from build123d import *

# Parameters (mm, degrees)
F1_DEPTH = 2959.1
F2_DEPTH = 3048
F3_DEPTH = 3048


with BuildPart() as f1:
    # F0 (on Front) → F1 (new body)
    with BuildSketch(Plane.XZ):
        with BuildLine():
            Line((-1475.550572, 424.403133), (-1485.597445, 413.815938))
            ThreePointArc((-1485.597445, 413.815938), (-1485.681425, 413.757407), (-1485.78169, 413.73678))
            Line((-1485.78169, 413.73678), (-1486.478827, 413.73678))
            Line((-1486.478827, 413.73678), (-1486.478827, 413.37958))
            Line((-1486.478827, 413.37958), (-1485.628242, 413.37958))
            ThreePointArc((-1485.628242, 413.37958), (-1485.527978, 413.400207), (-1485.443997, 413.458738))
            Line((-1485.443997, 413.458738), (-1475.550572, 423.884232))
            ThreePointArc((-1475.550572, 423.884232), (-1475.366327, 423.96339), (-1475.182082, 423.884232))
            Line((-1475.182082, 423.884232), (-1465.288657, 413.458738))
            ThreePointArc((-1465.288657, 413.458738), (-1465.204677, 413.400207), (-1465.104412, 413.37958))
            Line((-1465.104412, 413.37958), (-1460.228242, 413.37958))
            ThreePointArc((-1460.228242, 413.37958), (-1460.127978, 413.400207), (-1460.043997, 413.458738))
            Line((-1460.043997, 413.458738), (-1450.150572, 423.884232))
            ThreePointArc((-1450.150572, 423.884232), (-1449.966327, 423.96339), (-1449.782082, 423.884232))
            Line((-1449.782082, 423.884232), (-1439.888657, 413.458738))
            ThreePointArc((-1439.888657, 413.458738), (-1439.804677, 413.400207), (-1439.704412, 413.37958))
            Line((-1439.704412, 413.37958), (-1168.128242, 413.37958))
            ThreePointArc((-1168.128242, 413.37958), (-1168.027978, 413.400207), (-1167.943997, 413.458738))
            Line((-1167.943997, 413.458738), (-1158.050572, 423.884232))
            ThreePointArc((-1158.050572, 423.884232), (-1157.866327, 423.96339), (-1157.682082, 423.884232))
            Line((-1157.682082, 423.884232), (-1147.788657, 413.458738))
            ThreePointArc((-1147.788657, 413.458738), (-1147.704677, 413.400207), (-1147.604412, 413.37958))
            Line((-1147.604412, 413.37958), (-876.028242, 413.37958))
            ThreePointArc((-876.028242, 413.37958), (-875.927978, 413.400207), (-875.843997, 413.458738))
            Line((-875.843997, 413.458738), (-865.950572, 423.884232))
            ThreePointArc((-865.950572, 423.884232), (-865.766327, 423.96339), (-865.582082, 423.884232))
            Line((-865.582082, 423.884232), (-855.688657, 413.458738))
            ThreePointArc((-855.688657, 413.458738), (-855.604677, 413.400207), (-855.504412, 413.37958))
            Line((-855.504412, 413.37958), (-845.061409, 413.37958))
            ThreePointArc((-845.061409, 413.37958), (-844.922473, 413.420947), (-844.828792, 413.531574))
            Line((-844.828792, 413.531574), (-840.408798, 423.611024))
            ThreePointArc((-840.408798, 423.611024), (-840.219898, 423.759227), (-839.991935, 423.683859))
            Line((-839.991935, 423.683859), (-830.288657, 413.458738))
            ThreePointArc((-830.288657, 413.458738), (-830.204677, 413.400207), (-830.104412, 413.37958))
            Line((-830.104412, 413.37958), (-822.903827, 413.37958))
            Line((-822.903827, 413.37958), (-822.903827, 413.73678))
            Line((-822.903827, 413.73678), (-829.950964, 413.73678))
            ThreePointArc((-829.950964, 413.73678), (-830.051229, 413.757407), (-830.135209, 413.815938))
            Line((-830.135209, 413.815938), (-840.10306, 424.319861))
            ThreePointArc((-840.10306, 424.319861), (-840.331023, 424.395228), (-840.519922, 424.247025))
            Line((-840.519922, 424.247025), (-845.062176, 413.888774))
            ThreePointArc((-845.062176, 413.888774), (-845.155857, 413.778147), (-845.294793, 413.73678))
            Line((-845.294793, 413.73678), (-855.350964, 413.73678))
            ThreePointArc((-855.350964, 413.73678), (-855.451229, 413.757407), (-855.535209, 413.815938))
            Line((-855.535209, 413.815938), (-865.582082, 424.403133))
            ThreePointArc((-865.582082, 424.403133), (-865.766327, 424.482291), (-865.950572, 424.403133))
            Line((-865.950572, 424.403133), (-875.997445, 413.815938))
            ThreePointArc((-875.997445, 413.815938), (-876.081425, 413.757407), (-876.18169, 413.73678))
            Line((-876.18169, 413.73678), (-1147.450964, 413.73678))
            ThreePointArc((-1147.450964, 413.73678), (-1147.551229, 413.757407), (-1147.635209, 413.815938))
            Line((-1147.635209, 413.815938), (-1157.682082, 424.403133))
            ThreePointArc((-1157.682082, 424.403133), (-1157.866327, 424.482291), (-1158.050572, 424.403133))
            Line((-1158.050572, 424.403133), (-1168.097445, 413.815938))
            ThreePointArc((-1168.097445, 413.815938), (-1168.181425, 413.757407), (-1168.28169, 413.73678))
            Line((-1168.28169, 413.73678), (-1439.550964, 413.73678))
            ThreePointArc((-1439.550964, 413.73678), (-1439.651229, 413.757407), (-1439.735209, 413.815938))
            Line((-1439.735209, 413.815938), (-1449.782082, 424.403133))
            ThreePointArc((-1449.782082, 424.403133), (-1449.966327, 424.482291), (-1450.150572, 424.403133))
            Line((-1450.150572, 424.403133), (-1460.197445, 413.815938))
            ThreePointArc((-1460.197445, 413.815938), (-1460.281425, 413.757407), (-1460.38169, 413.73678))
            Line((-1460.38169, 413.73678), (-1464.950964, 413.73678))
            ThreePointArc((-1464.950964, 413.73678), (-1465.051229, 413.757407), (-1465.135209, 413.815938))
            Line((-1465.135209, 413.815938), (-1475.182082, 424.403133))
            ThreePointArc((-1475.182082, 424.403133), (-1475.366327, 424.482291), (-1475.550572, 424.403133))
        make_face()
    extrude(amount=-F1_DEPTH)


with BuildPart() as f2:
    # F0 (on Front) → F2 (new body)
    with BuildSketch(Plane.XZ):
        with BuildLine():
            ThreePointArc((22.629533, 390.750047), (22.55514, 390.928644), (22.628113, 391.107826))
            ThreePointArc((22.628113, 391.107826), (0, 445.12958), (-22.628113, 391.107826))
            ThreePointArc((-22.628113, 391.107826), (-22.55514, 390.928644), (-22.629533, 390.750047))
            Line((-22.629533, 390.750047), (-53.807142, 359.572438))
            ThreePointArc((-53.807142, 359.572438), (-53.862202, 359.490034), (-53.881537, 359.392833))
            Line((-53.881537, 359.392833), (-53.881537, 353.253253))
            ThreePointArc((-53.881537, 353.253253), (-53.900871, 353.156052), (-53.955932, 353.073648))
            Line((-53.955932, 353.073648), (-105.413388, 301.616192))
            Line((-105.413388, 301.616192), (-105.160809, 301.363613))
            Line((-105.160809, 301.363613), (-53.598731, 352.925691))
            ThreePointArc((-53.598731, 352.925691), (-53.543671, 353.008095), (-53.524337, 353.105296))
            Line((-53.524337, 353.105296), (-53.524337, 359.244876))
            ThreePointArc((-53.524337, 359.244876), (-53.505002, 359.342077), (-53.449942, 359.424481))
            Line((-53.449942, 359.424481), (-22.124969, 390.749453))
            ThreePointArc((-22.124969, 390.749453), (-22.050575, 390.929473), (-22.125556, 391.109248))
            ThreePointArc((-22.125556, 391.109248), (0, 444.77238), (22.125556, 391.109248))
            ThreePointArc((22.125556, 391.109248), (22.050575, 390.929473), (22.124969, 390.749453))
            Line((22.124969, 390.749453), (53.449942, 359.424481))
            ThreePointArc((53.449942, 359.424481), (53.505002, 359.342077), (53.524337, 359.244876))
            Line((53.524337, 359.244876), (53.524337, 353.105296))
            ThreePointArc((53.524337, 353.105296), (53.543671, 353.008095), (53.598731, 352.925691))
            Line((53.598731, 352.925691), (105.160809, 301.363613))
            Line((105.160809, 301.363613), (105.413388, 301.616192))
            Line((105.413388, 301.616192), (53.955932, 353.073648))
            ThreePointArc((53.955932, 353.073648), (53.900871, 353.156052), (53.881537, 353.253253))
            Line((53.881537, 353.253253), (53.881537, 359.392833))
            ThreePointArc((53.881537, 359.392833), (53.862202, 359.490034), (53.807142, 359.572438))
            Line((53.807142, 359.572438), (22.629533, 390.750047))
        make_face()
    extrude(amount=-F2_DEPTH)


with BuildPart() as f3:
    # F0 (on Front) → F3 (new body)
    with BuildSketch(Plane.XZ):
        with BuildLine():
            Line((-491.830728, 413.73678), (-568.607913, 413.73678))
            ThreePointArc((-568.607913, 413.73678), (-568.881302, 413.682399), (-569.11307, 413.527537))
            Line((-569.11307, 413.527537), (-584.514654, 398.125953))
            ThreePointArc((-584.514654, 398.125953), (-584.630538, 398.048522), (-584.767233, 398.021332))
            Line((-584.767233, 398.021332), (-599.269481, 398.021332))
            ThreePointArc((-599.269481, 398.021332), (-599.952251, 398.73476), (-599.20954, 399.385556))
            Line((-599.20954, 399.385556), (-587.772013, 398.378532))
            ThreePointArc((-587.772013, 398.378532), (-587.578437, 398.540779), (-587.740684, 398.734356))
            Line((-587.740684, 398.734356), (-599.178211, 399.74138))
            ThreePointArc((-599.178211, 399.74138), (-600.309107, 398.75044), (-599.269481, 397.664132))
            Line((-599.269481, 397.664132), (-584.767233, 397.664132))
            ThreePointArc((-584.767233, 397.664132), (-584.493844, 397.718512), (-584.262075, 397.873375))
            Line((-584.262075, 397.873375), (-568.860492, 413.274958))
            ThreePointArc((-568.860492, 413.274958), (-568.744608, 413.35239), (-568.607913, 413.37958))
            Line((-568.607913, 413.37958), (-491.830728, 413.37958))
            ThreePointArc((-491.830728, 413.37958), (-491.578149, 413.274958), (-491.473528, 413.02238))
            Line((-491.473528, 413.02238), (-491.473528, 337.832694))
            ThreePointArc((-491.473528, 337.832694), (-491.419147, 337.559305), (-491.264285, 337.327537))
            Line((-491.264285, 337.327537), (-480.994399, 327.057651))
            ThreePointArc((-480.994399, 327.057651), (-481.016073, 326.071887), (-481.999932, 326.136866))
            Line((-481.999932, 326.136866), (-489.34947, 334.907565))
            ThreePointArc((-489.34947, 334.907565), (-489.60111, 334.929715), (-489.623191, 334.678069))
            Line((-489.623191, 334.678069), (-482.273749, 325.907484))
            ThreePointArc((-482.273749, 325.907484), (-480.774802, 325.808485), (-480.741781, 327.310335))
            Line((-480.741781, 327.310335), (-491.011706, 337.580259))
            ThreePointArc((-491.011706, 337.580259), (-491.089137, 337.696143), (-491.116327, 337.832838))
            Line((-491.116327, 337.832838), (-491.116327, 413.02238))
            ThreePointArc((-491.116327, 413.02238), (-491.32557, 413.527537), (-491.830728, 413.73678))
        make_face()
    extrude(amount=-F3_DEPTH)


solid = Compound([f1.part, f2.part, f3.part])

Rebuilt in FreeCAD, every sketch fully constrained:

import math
import FreeCAD as App
import Part
import Sketcher

V = App.Vector
Q = App.Units.Quantity

doc = App.newDocument("Part")
body = doc.addObject("PartDesign::Body", "Body")

sketch1 = body.newObject("Sketcher::SketchObject", "Sketch")
sketch1.AttachmentSupport = (doc.getObject("XZ_Plane"), [""])
sketch1.MapMode = "FlatFace"
sketch1.addGeometry([
    Part.LineSegment(V(-1475.550572, 424.403133, 0), V(-1485.597445, 413.815938, 0)),
    Part.ArcOfCircle(Part.Circle(V(-1485.78169, 413.990779, 0), V(0, 0, 1), 0.253999), math.radians(-90.00009), math.radians(-43.499857)),
    Part.LineSegment(V(-1485.78169, 413.73678, 0), V(-1486.478827, 413.73678, 0)),
    Part.LineSegment(V(-1486.478827, 413.73678, 0), V(-1486.478827, 413.37958, 0)),
    Part.LineSegment(V(-1486.478827, 413.37958, 0), V(-1485.628242, 413.37958, 0)),
    Part.ArcOfCircle(Part.Circle(V(-1485.628244, 413.633583, 0), V(0, 0, 1), 0.254003), math.radians(-89.999657), math.radians(-43.50029)),
    Part.LineSegment(V(-1485.443997, 413.458738, 0), V(-1475.550572, 423.884232, 0)),
    Part.ArcOfCircle(Part.Circle(V(-1475.366327, 423.70939, 0), V(0, 0, 1), 0.254), math.radians(43.499947), math.radians(136.500053)),
    Part.LineSegment(V(-1475.182082, 423.884232, 0), V(-1465.288657, 413.458738, 0)),
    Part.ArcOfCircle(Part.Circle(V(-1465.104412, 413.633579, 0), V(0, 0, 1), 0.253999), math.radians(-136.500143), math.radians(-89.99991)),
    Part.LineSegment(V(-1465.104412, 413.37958, 0), V(-1460.228242, 413.37958, 0)),
    Part.ArcOfCircle(Part.Circle(V(-1460.228244, 413.633583, 0), V(0, 0, 1), 0.254003), math.radians(-89.999657), math.radians(-43.50029)),
    Part.LineSegment(V(-1460.043997, 413.458738, 0), V(-1450.150572, 423.884232, 0)),
    Part.ArcOfCircle(Part.Circle(V(-1449.966327, 423.70939, 0), V(0, 0, 1), 0.254), math.radians(43.499947), math.radians(136.500053)),
    Part.LineSegment(V(-1449.782082, 423.884232, 0), V(-1439.888657, 413.458738, 0)),
    Part.ArcOfCircle(Part.Circle(V(-1439.704412, 413.633579, 0), V(0, 0, 1), 0.253999), math.radians(-136.500143), math.radians(-89.99991)),
    Part.LineSegment(V(-1439.704412, 413.37958, 0), V(-1168.128242, 413.37958, 0)),
    Part.ArcOfCircle(Part.Circle(V(-1168.128244, 413.633583, 0), V(0, 0, 1), 0.254003), math.radians(-89.999657), math.radians(-43.50029)),
    Part.LineSegment(V(-1167.943997, 413.458738, 0), V(-1158.050572, 423.884232, 0)),
    Part.ArcOfCircle(Part.Circle(V(-1157.866327, 423.70939, 0), V(0, 0, 1), 0.254), math.radians(43.499947), math.radians(136.500053)),
    Part.LineSegment(V(-1157.682082, 423.884232, 0), V(-1147.788657, 413.458738, 0)),
    Part.ArcOfCircle(Part.Circle(V(-1147.604412, 413.633579, 0), V(0, 0, 1), 0.253999), math.radians(-136.500143), math.radians(-89.99991)),
    Part.LineSegment(V(-1147.604412, 413.37958, 0), V(-876.028242, 413.37958, 0)),
    Part.ArcOfCircle(Part.Circle(V(-876.028244, 413.633583, 0), V(0, 0, 1), 0.254003), math.radians(-89.999657), math.radians(-43.50029)),
    Part.LineSegment(V(-875.843997, 413.458738, 0), V(-865.950572, 423.884232, 0)),
    Part.ArcOfCircle(Part.Circle(V(-865.766327, 423.70939, 0), V(0, 0, 1), 0.254), math.radians(43.499947), math.radians(136.500053)),
    Part.LineSegment(V(-865.582082, 423.884232, 0), V(-855.688657, 413.458738, 0)),
    Part.ArcOfCircle(Part.Circle(V(-855.504412, 413.633579, 0), V(0, 0, 1), 0.253999), math.radians(-136.500143), math.radians(-89.99991)),
    Part.LineSegment(V(-855.504412, 413.37958, 0), V(-845.061409, 413.37958, 0)),
    Part.ArcOfCircle(Part.Circle(V(-845.061409, 413.633579, 0), V(0, 0, 1), 0.253999), math.radians(-90.000051), math.radians(-23.678039)),
    Part.LineSegment(V(-844.828792, 413.531574, 0), V(-840.408798, 423.611024, 0)),
    Part.ArcOfCircle(Part.Circle(V(-840.176181, 423.509017, 0), V(0, 0, 1), 0.254), math.radians(43.499868), math.radians(156.321675)),
    Part.LineSegment(V(-839.991935, 423.683859, 0), V(-830.288657, 413.458738, 0)),
    Part.ArcOfCircle(Part.Circle(V(-830.104412, 413.633579, 0), V(0, 0, 1), 0.253999), math.radians(-136.500143), math.radians(-89.99991)),
    Part.LineSegment(V(-830.104412, 413.37958, 0), V(-822.903827, 413.37958, 0)),
    Part.LineSegment(V(-822.903827, 413.37958, 0), V(-822.903827, 413.73678, 0)),
    Part.LineSegment(V(-822.903827, 413.73678, 0), V(-829.950964, 413.73678, 0)),
    Part.ArcOfCircle(Part.Circle(V(-829.950964, 413.990779, 0), V(0, 0, 1), 0.253999), math.radians(-136.500143), math.radians(-89.99991)),
    Part.LineSegment(V(-830.135209, 413.815938, 0), V(-840.10306, 424.319861, 0)),
    Part.ArcOfCircle(Part.Circle(V(-840.287305, 424.145019, 0), V(0, 0, 1), 0.254), math.radians(43.500104), math.radians(156.321753)),
    Part.LineSegment(V(-840.519922, 424.247025, 0), V(-845.062176, 413.888774, 0)),
    Part.ArcOfCircle(Part.Circle(V(-845.294793, 413.990779, 0), V(0, 0, 1), 0.253999), math.radians(-90.000051), math.radians(-23.678039)),
    Part.LineSegment(V(-845.294793, 413.73678, 0), V(-855.350964, 413.73678, 0)),
    Part.ArcOfCircle(Part.Circle(V(-855.350964, 413.990779, 0), V(0, 0, 1), 0.253999), math.radians(-136.500143), math.radians(-89.99991)),
    Part.LineSegment(V(-855.535209, 413.815938, 0), V(-865.582082, 424.403133, 0)),
    Part.ArcOfCircle(Part.Circle(V(-865.766327, 424.228291, 0), V(0, 0, 1), 0.254), math.radians(43.499947), math.radians(136.500053)),
    Part.LineSegment(V(-865.950572, 424.403133, 0), V(-875.997445, 413.815938, 0)),
    Part.ArcOfCircle(Part.Circle(V(-876.18169, 413.990779, 0), V(0, 0, 1), 0.253999), math.radians(-90.00009), math.radians(-43.499857)),
    Part.LineSegment(V(-876.18169, 413.73678, 0), V(-1147.450964, 413.73678, 0)),
    Part.ArcOfCircle(Part.Circle(V(-1147.450964, 413.990779, 0), V(0, 0, 1), 0.253999), math.radians(-136.500143), math.radians(-89.99991)),
    Part.LineSegment(V(-1147.635209, 413.815938, 0), V(-1157.682082, 424.403133, 0)),
    Part.ArcOfCircle(Part.Circle(V(-1157.866327, 424.228291, 0), V(0, 0, 1), 0.254), math.radians(43.499947), math.radians(136.500053)),
    Part.LineSegment(V(-1158.050572, 424.403133, 0), V(-1168.097445, 413.815938, 0)),
    Part.ArcOfCircle(Part.Circle(V(-1168.28169, 413.990779, 0), V(0, 0, 1), 0.253999), math.radians(-90.00009), math.radians(-43.499857)),
    Part.LineSegment(V(-1168.28169, 413.73678, 0), V(-1439.550964, 413.73678, 0)),
    Part.ArcOfCircle(Part.Circle(V(-1439.550964, 413.990779, 0), V(0, 0, 1), 0.253999), math.radians(-136.500143), math.radians(-89.99991)),
    Part.LineSegment(V(-1439.735209, 413.815938, 0), V(-1449.782082, 424.403133, 0)),
    Part.ArcOfCircle(Part.Circle(V(-1449.966327, 424.228291, 0), V(0, 0, 1), 0.254), math.radians(43.499947), math.radians(136.500053)),
    Part.LineSegment(V(-1450.150572, 424.403133, 0), V(-1460.197445, 413.815938, 0)),
    Part.ArcOfCircle(Part.Circle(V(-1460.38169, 413.990779, 0), V(0, 0, 1), 0.253999), math.radians(-90.00009), math.radians(-43.499857)),
    Part.LineSegment(V(-1460.38169, 413.73678, 0), V(-1464.950964, 413.73678, 0)),
    Part.ArcOfCircle(Part.Circle(V(-1464.950964, 413.990779, 0), V(0, 0, 1), 0.253999), math.radians(-136.500143), math.radians(-89.99991)),
    Part.LineSegment(V(-1465.135209, 413.815938, 0), V(-1475.182082, 424.403133, 0)),
    Part.ArcOfCircle(Part.Circle(V(-1475.366327, 424.228291, 0), V(0, 0, 1), 0.254), math.radians(43.499947), math.radians(136.500053)),
], False)
sketch1.addConstraint([
    Sketcher.Constraint("Coincident", 0, 2, 1, 2),
    Sketcher.Constraint("Coincident", 1, 1, 2, 1),
    Sketcher.Constraint("Coincident", 2, 2, 3, 1),
    Sketcher.Constraint("Coincident", 3, 2, 4, 1),
    Sketcher.Constraint("Coincident", 4, 2, 5, 1),
    Sketcher.Constraint("Coincident", 5, 2, 6, 1),
    Sketcher.Constraint("Coincident", 6, 2, 7, 2),
    Sketcher.Constraint("Coincident", 7, 1, 8, 1),
    Sketcher.Constraint("Coincident", 8, 2, 9, 1),
    Sketcher.Constraint("Coincident", 9, 2, 10, 1),
    Sketcher.Constraint("Coincident", 10, 2, 11, 1),
    Sketcher.Constraint("Coincident", 11, 2, 12, 1),
    Sketcher.Constraint("Coincident", 12, 2, 13, 2),
    Sketcher.Constraint("Coincident", 13, 1, 14, 1),
    Sketcher.Constraint("Coincident", 14, 2, 15, 1),
    Sketcher.Constraint("Coincident", 15, 2, 16, 1),
    Sketcher.Constraint("Coincident", 16, 2, 17, 1),
    Sketcher.Constraint("Coincident", 17, 2, 18, 1),
    Sketcher.Constraint("Coincident", 18, 2, 19, 2),
    Sketcher.Constraint("Coincident", 19, 1, 20, 1),
    Sketcher.Constraint("Coincident", 20, 2, 21, 1),
    Sketcher.Constraint("Coincident", 21, 2, 22, 1),
    Sketcher.Constraint("Coincident", 22, 2, 23, 1),
    Sketcher.Constraint("Coincident", 23, 2, 24, 1),
    Sketcher.Constraint("Coincident", 24, 2, 25, 2),
    Sketcher.Constraint("Coincident", 25, 1, 26, 1),
    Sketcher.Constraint("Coincident", 26, 2, 27, 1),
    Sketcher.Constraint("Coincident", 27, 2, 28, 1),
    Sketcher.Constraint("Coincident", 28, 2, 29, 1),
    Sketcher.Constraint("Coincident", 29, 2, 30, 1),
    Sketcher.Constraint("Coincident", 30, 2, 31, 2),
    Sketcher.Constraint("Coincident", 31, 1, 32, 1),
    Sketcher.Constraint("Coincident", 32, 2, 33, 1),
    Sketcher.Constraint("Coincident", 33, 2, 34, 1),
    Sketcher.Constraint("Coincident", 34, 2, 35, 1),
    Sketcher.Constraint("Coincident", 35, 2, 36, 1),
    Sketcher.Constraint("Coincident", 36, 2, 37, 2),
    Sketcher.Constraint("Coincident", 37, 1, 38, 1),
    Sketcher.Constraint("Coincident", 38, 2, 39, 1),
    Sketcher.Constraint("Coincident", 39, 2, 40, 1),
    Sketcher.Constraint("Coincident", 40, 2, 41, 2),
    Sketcher.Constraint("Coincident", 41, 1, 42, 1),
    Sketcher.Constraint("Coincident", 42, 2, 43, 2),
    Sketcher.Constraint("Coincident", 43, 1, 44, 1),
    Sketcher.Constraint("Coincident", 44, 2, 45, 1),
    Sketcher.Constraint("Coincident", 45, 2, 46, 1),
    Sketcher.Constraint("Coincident", 46, 2, 47, 2),
    Sketcher.Constraint("Coincident", 47, 1, 48, 1),
    Sketcher.Constraint("Coincident", 48, 2, 49, 2),
    Sketcher.Constraint("Coincident", 49, 1, 50, 1),
    Sketcher.Constraint("Coincident", 50, 2, 51, 1),
    Sketcher.Constraint("Coincident", 51, 2, 52, 1),
    Sketcher.Constraint("Coincident", 52, 2, 53, 2),
    Sketcher.Constraint("Coincident", 53, 1, 54, 1),
    Sketcher.Constraint("Coincident", 54, 2, 55, 2),
    Sketcher.Constraint("Coincident", 55, 1, 56, 1),
    Sketcher.Constraint("Coincident", 56, 2, 57, 1),
    Sketcher.Constraint("Coincident", 57, 2, 58, 1),
    Sketcher.Constraint("Coincident", 58, 2, 59, 2),
    Sketcher.Constraint("Coincident", 59, 1, 60, 1),
    Sketcher.Constraint("Coincident", 60, 2, 61, 2),
    Sketcher.Constraint("Coincident", 61, 1, 62, 1),
    Sketcher.Constraint("Coincident", 62, 2, 63, 1),
    Sketcher.Constraint("Coincident", 63, 2, 0, 1),
    Sketcher.Constraint("Horizontal", 2),
    Sketcher.Constraint("Vertical", 3),
    Sketcher.Constraint("Horizontal", 4),
    Sketcher.Constraint("Horizontal", 10),
    Sketcher.Constraint("Horizontal", 16),
    Sketcher.Constraint("Horizontal", 22),
    Sketcher.Constraint("Horizontal", 28),
    Sketcher.Constraint("Horizontal", 34),
    Sketcher.Constraint("Vertical", 35),
    Sketcher.Constraint("Horizontal", 36),
    Sketcher.Constraint("Horizontal", 42),
    Sketcher.Constraint("Horizontal", 48),
    Sketcher.Constraint("Horizontal", 54),
    Sketcher.Constraint("Horizontal", 60),
    Sketcher.Constraint("Radius", 1, Q("0.0099999 in")),
    Sketcher.Constraint("Radius", 5, Q("0.0100001 in")),
    Sketcher.Constraint("Radius", 7, Q("0.01 in")),
    Sketcher.Constraint("Radius", 9, Q("0.0099999 in")),
    Sketcher.Constraint("Radius", 11, Q("0.0100001 in")),
    Sketcher.Constraint("Radius", 13, Q("0.01 in")),
    Sketcher.Constraint("Radius", 15, Q("0.0099999 in")),
    Sketcher.Constraint("Radius", 17, Q("0.0100001 in")),
    Sketcher.Constraint("Radius", 19, Q("0.01 in")),
    Sketcher.Constraint("Radius", 21, Q("0.0099999 in")),
    Sketcher.Constraint("Radius", 23, Q("0.0100001 in")),
    Sketcher.Constraint("Radius", 25, Q("0.01 in")),
    Sketcher.Constraint("Radius", 27, Q("0.0099999 in")),
    Sketcher.Constraint("Radius", 29, Q("0.01 in")),
    Sketcher.Constraint("Radius", 31, Q("0.01 in")),
    Sketcher.Constraint("Radius", 33, Q("0.0099999 in")),
    Sketcher.Constraint("Radius", 37, Q("0.0099999 in")),
    Sketcher.Constraint("Radius", 39, Q("0.01 in")),
    Sketcher.Constraint("Radius", 41, Q("0.01 in")),
    Sketcher.Constraint("Radius", 43, Q("0.0099999 in")),
    Sketcher.Constraint("Radius", 45, Q("0.01 in")),
    Sketcher.Constraint("Radius", 47, Q("0.0099999 in")),
    Sketcher.Constraint("Radius", 49, Q("0.0099999 in")),
    Sketcher.Constraint("Radius", 51, Q("0.01 in")),
    Sketcher.Constraint("Radius", 53, Q("0.0099999 in")),
    Sketcher.Constraint("Radius", 55, Q("0.0099999 in")),
    Sketcher.Constraint("Radius", 57, Q("0.01 in")),
    Sketcher.Constraint("Radius", 59, Q("0.0099999 in")),
    Sketcher.Constraint("Radius", 61, Q("0.0099999 in")),
    Sketcher.Constraint("Radius", 63, Q("0.01 in")),
    Sketcher.Constraint("DistanceY", 3, 2, 3, 1, Q("0.3572 mm")),
    Sketcher.Constraint("DistanceY", 35, 1, 35, 2, Q("0.3572 mm")),
    Sketcher.Constraint("DistanceX", 10, 1, 10, 2, Q("4.87617 mm")),
    Sketcher.Constraint("DistanceX", 16, 1, 16, 2, Q("271.57617 mm")),
    Sketcher.Constraint("DistanceX", 22, 1, 22, 2, Q("271.57617 mm")),
    Sketcher.Constraint("DistanceX", 42, 2, 42, 1, Q("10.056171 mm")),
    Sketcher.Constraint("DistanceX", 30, 2, -1, 1, Q("840.408798 mm")),
    Sketcher.Constraint("Distance", 0, Q("14.595491 mm")),
    Sketcher.Constraint("Distance", 6, Q("14.372571 mm")),
    Sketcher.Constraint("Distance", 8, Q("14.372571 mm")),
    Sketcher.Constraint("Distance", 12, Q("14.372571 mm")),
    Sketcher.Constraint("Distance", 14, Q("14.372571 mm")),
    Sketcher.Constraint("Distance", 18, Q("14.372571 mm")),
    Sketcher.Constraint("Distance", 20, Q("14.372571 mm")),
    Sketcher.Constraint("Distance", 24, Q("14.372571 mm")),
    Sketcher.Constraint("Distance", 26, Q("14.372571 mm")),
    Sketcher.Constraint("Distance", 44, Q("14.595491 mm")),
    Sketcher.Constraint("Distance", 46, Q("14.595491 mm")),
    Sketcher.Constraint("Distance", 50, Q("14.595491 mm")),
    Sketcher.Constraint("Distance", 52, Q("14.595491 mm")),
    Sketcher.Constraint("Distance", 56, Q("14.595491 mm")),
    Sketcher.Constraint("Distance", 58, Q("14.595491 mm")),
    Sketcher.Constraint("Distance", 62, Q("14.595491 mm")),
    Sketcher.Constraint("DistanceX", 2, 2, 2, 1, Q("0.697137 mm")),
    Sketcher.Constraint("DistanceX", 4, 1, 4, 2, Q("0.850585 mm")),
    Sketcher.Constraint("DistanceX", 28, 1, 28, 2, Q("10.443003 mm")),
    Sketcher.Constraint("DistanceX", 34, 1, 34, 2, Q("7.200585 mm")),
    Sketcher.Constraint("DistanceX", 36, 2, 36, 1, Q("7.047137 mm")),
    Sketcher.Constraint("DistanceX", 48, 2, 48, 1, Q("271.269274 mm")),
    Sketcher.Constraint("DistanceX", 54, 2, 54, 1, Q("271.269274 mm")),
    Sketcher.Constraint("DistanceX", 60, 2, 60, 1, Q("4.569274 mm")),
    Sketcher.Constraint("DistanceX", 1, 3, -1, 1, Q("1485.78169 mm")),
    Sketcher.Constraint("DistanceY", -1, 1, 1, 3, Q("413.990779 mm")),
    Sketcher.Constraint("DistanceY", -1, 1, 7, 3, Q("423.70939 mm")),
    Sketcher.Constraint("DistanceY", -1, 1, 9, 3, Q("413.633579 mm")),
    Sketcher.Constraint("DistanceY", -1, 1, 13, 3, Q("423.70939 mm")),
    Sketcher.Constraint("DistanceY", -1, 1, 15, 3, Q("413.633579 mm")),
    Sketcher.Constraint("DistanceY", -1, 1, 19, 3, Q("423.70939 mm")),
    Sketcher.Constraint("DistanceY", -1, 1, 21, 3, Q("413.633579 mm")),
    Sketcher.Constraint("DistanceY", -1, 1, 25, 3, Q("423.70939 mm")),
    Sketcher.Constraint("DistanceY", -1, 1, 27, 3, Q("413.633579 mm")),
    Sketcher.Constraint("DistanceX", 29, 3, -1, 1, Q("845.061409 mm")),
    Sketcher.Constraint("DistanceX", 31, 3, -1, 1, Q("840.176181 mm")),
    Sketcher.Constraint("DistanceY", -1, 1, 33, 3, Q("413.633579 mm")),
    Sketcher.Constraint("DistanceY", -1, 1, 39, 3, Q("424.145019 mm")),
    Sketcher.Constraint("DistanceY", -1, 1, 41, 3, Q("413.990779 mm")),
    Sketcher.Constraint("DistanceY", -1, 1, 45, 3, Q("424.228291 mm")),
    Sketcher.Constraint("DistanceX", 47, 3, -1, 1, Q("876.18169 mm")),
    Sketcher.Constraint("DistanceY", -1, 1, 47, 3, Q("413.990779 mm")),
    Sketcher.Constraint("DistanceY", -1, 1, 51, 3, Q("424.228291 mm")),
    Sketcher.Constraint("DistanceX", 53, 3, -1, 1, Q("1168.28169 mm")),
    Sketcher.Constraint("DistanceY", -1, 1, 53, 3, Q("413.990779 mm")),
    Sketcher.Constraint("DistanceY", -1, 1, 57, 3, Q("424.228291 mm")),
    Sketcher.Constraint("DistanceX", 59, 3, -1, 1, Q("1460.38169 mm")),
    Sketcher.Constraint("DistanceY", -1, 1, 59, 3, Q("413.990779 mm")),
    Sketcher.Constraint("DistanceY", -1, 1, 63, 3, Q("424.228291 mm")),
    Sketcher.Constraint("DistanceY", -1, 1, 0, 2, Q("413.815938 mm")),
    Sketcher.Constraint("DistanceX", 1, 1, -1, 1, Q("1485.78169 mm")),
    Sketcher.Constraint("DistanceY", -1, 1, 5, 2, Q("413.458738 mm")),
    Sketcher.Constraint("DistanceX", 6, 2, -1, 1, Q("1475.550572 mm")),
    Sketcher.Constraint("DistanceY", -1, 1, 6, 2, Q("423.884232 mm")),
    Sketcher.Constraint("DistanceX", 7, 1, -1, 1, Q("1475.182082 mm")),
    Sketcher.Constraint("DistanceY", -1, 1, 8, 2, Q("413.458738 mm")),
    Sketcher.Constraint("DistanceX", 9, 2, -1, 1, Q("1465.104412 mm")),
    Sketcher.Constraint("DistanceY", -1, 1, 11, 2, Q("413.458738 mm")),
    Sketcher.Constraint("DistanceX", 12, 2, -1, 1, Q("1450.150572 mm")),
    Sketcher.Constraint("DistanceY", -1, 1, 12, 2, Q("423.884232 mm")),
    Sketcher.Constraint("DistanceX", 13, 1, -1, 1, Q("1449.782082 mm")),
    Sketcher.Constraint("DistanceY", -1, 1, 14, 2, Q("413.458738 mm")),
    Sketcher.Constraint("DistanceX", 15, 2, -1, 1, Q("1439.704412 mm")),
    Sketcher.Constraint("DistanceY", -1, 1, 17, 2, Q("413.458738 mm")),
    Sketcher.Constraint("DistanceX", 18, 2, -1, 1, Q("1158.050572 mm")),
    Sketcher.Constraint("DistanceY", -1, 1, 18, 2, Q("423.884232 mm")),
    Sketcher.Constraint("DistanceX", 19, 1, -1, 1, Q("1157.682082 mm")),
    Sketcher.Constraint("DistanceY", -1, 1, 20, 2, Q("413.458738 mm")),
    Sketcher.Constraint("DistanceX", 21, 2, -1, 1, Q("1147.604412 mm")),
    Sketcher.Constraint("DistanceY", -1, 1, 23, 2, Q("413.458738 mm")),
    Sketcher.Constraint("DistanceX", 24, 2, -1, 1, Q("865.950572 mm")),
    Sketcher.Constraint("DistanceY", -1, 1, 24, 2, Q("423.884232 mm")),
    Sketcher.Constraint("DistanceX", 25, 1, -1, 1, Q("865.582082 mm")),
    Sketcher.Constraint("DistanceY", -1, 1, 26, 2, Q("413.458738 mm")),
    Sketcher.Constraint("DistanceX", 27, 2, -1, 1, Q("855.504412 mm")),
    Sketcher.Constraint("DistanceX", 29, 2, -1, 1, Q("844.828792 mm")),
    Sketcher.Constraint("DistanceY", -1, 1, 31, 1, Q("423.683859 mm")),
    Sketcher.Constraint("DistanceY", -1, 1, 32, 2, Q("413.458738 mm")),
    Sketcher.Constraint("DistanceX", 33, 2, -1, 1, Q("830.104412 mm")),
    Sketcher.Constraint("DistanceX", 37, 1, -1, 1, Q("830.135209 mm")),
    Sketcher.Constraint("DistanceX", 38, 2, -1, 1, Q("840.10306 mm")),
    Sketcher.Constraint("DistanceY", -1, 1, 38, 2, Q("424.319861 mm")),
    Sketcher.Constraint("DistanceX", 39, 2, -1, 1, Q("840.519922 mm")),
    Sketcher.Constraint("DistanceX", 43, 1, -1, 1, Q("855.535209 mm")),
    Sketcher.Constraint("DistanceX", 44, 2, -1, 1, Q("865.582082 mm")),
    Sketcher.Constraint("DistanceY", -1, 1, 46, 2, Q("413.815938 mm")),
    Sketcher.Constraint("DistanceX", 47, 1, -1, 1, Q("876.18169 mm")),
    Sketcher.Constraint("DistanceX", 49, 1, -1, 1, Q("1147.635209 mm")),
    Sketcher.Constraint("DistanceX", 50, 2, -1, 1, Q("1157.682082 mm")),
    Sketcher.Constraint("DistanceY", -1, 1, 52, 2, Q("413.815938 mm")),
    Sketcher.Constraint("DistanceX", 53, 1, -1, 1, Q("1168.28169 mm")),
    Sketcher.Constraint("DistanceX", 55, 1, -1, 1, Q("1439.735209 mm")),
    Sketcher.Constraint("DistanceX", 56, 2, -1, 1, Q("1449.782082 mm")),
    Sketcher.Constraint("DistanceY", -1, 1, 58, 2, Q("413.815938 mm")),
    Sketcher.Constraint("DistanceX", 59, 1, -1, 1, Q("1460.38169 mm")),
    Sketcher.Constraint("DistanceX", 61, 1, -1, 1, Q("1465.135209 mm")),
    Sketcher.Constraint("DistanceX", 62, 2, -1, 1, Q("1475.182082 mm")),
    Sketcher.Constraint("Distance", 30, Q("11.005983 mm")),
    Sketcher.Constraint("Distance", 32, Q("14.096337 mm")),
    Sketcher.Constraint("Distance", 38, Q("14.480692 mm")),
    Sketcher.Constraint("Distance", 40, Q("11.310413 mm")),
    Sketcher.Constraint("DistanceX", 41, 3, -1, 1, Q("845.294793 mm")),
    Sketcher.Constraint("DistanceX", 43, 3, -1, 1, Q("855.350964 mm")),
    Sketcher.Constraint("DistanceX", 49, 3, -1, 1, Q("1147.450964 mm")),
    Sketcher.Constraint("DistanceX", 55, 3, -1, 1, Q("1439.550964 mm")),
    Sketcher.Constraint("DistanceX", 61, 3, -1, 1, Q("1464.950964 mm")),
    Sketcher.Constraint("DistanceX", 41, 1, -1, 1, Q("845.294793 mm")),
])
pad1 = body.newObject("PartDesign::Pad", "Pad")
pad1.Profile = sketch1
pad1.Length = Q("116.5 in")
pad1.Reversed = True
body2 = doc.addObject("PartDesign::Body", "Body001")

sketch2 = body2.newObject("Sketcher::SketchObject", "Sketch001")
sketch2.AttachmentSupport = (doc.getObject("XZ_Plane001"), [""])
sketch2.MapMode = "FlatFace"
sketch2.addGeometry([
    Part.ArcOfCircle(Part.Circle(V(22.81, 390.93, 0), V(0, 0, 1), 0.25), math.radians(135), math.radians(225)),
    Part.ArcOfCircle(Part.Circle(V(0, 413.38, 0), V(0, 0, 1), 31.75), math.radians(-45), math.radians(225)),
    Part.ArcOfCircle(Part.Circle(V(-22.81, 390.93, 0), V(0, 0, 1), 0.25), math.radians(-45), math.radians(45)),
    Part.LineSegment(V(-22.63, 390.75, 0), V(-53.81, 359.57, 0)),
    Part.ArcOfCircle(Part.Circle(V(-53.63, 359.39, 0), V(0, 0, 1), 0.25), math.radians(135), math.radians(180)),
    Part.LineSegment(V(-53.88, 359.39, 0), V(-53.88, 353.25, 0)),
    Part.ArcOfCircle(Part.Circle(V(-54.14, 353.25, 0), V(0, 0, 1), 0.25), math.radians(-45), math.radians(0)),
    Part.LineSegment(V(-53.96, 353.07, 0), V(-105.41, 301.62, 0)),
    Part.LineSegment(V(-105.41, 301.62, 0), V(-105.16, 301.36, 0)),
    Part.LineSegment(V(-105.16, 301.36, 0), V(-53.6, 352.93, 0)),
    Part.ArcOfCircle(Part.Circle(V(-53.78, 353.11, 0), V(0, 0, 1), 0.25), math.radians(-45), math.radians(0)),
    Part.LineSegment(V(-53.52, 353.11, 0), V(-53.52, 359.24, 0)),
    Part.ArcOfCircle(Part.Circle(V(-53.27, 359.24, 0), V(0, 0, 1), 0.25), math.radians(135), math.radians(180)),
    Part.LineSegment(V(-53.45, 359.42, 0), V(-22.12, 390.75, 0)),
    Part.ArcOfCircle(Part.Circle(V(-22.3, 390.93, 0), V(0, 0, 1), 0.25), math.radians(-45), math.radians(45)),
    Part.ArcOfCircle(Part.Circle(V(0, 413.38, 0), V(0, 0, 1), 31.39), math.radians(-45), math.radians(225)),
    Part.ArcOfCircle(Part.Circle(V(22.3, 390.93, 0), V(0, 0, 1), 0.25), math.radians(135), math.radians(225)),
    Part.LineSegment(V(22.12, 390.75, 0), V(53.45, 359.42, 0)),
    Part.ArcOfCircle(Part.Circle(V(53.27, 359.24, 0), V(0, 0, 1), 0.25), math.radians(0), math.radians(45)),
    Part.LineSegment(V(53.52, 359.24, 0), V(53.52, 353.11, 0)),
    Part.ArcOfCircle(Part.Circle(V(53.78, 353.11, 0), V(0, 0, 1), 0.25), math.radians(180), math.radians(225)),
    Part.LineSegment(V(53.6, 352.93, 0), V(105.16, 301.36, 0)),
    Part.LineSegment(V(105.16, 301.36, 0), V(105.41, 301.62, 0)),
    Part.LineSegment(V(105.41, 301.62, 0), V(53.96, 353.07, 0)),
    Part.ArcOfCircle(Part.Circle(V(54.14, 353.25, 0), V(0, 0, 1), 0.25), math.radians(180), math.radians(225)),
    Part.LineSegment(V(53.88, 353.25, 0), V(53.88, 359.39, 0)),
    Part.ArcOfCircle(Part.Circle(V(53.63, 359.39, 0), V(0, 0, 1), 0.25), math.radians(0), math.radians(45)),
    Part.LineSegment(V(53.81, 359.57, 0), V(22.63, 390.75, 0)),
], False)
sketch2.addConstraint([
    Sketcher.Constraint("Tangent", 0, 1, 1, 1),
    Sketcher.Constraint("Tangent", 1, 2, 2, 2),
    Sketcher.Constraint("Tangent", 2, 1, 3, 1),
    Sketcher.Constraint("Coincident", 3, 2, 4, 1),
    Sketcher.Constraint("Coincident", 4, 2, 5, 1),
    Sketcher.Constraint("Coincident", 5, 2, 6, 2),
    Sketcher.Constraint("Coincident", 6, 1, 7, 1),
    Sketcher.Constraint("Coincident", 7, 2, 8, 1),
    Sketcher.Constraint("Coincident", 8, 2, 9, 1),
    Sketcher.Constraint("Coincident", 9, 2, 10, 1),
    Sketcher.Constraint("Coincident", 10, 2, 11, 1),
    Sketcher.Constraint("Coincident", 11, 2, 12, 2),
    Sketcher.Constraint("Coincident", 12, 1, 13, 1),
    Sketcher.Constraint("Coincident", 13, 2, 14, 1),
    Sketcher.Constraint("Coincident", 14, 2, 15, 2),
    Sketcher.Constraint("Coincident", 15, 1, 16, 1),
    Sketcher.Constraint("Coincident", 16, 2, 17, 1),
    Sketcher.Constraint("Coincident", 17, 2, 18, 2),
    Sketcher.Constraint("Coincident", 18, 1, 19, 1),
    Sketcher.Constraint("Coincident", 19, 2, 20, 1),
    Sketcher.Constraint("Coincident", 20, 2, 21, 1),
    Sketcher.Constraint("Coincident", 21, 2, 22, 1),
    Sketcher.Constraint("Coincident", 22, 2, 23, 1),
    Sketcher.Constraint("Coincident", 23, 2, 24, 2),
    Sketcher.Constraint("Coincident", 24, 1, 25, 1),
    Sketcher.Constraint("Coincident", 25, 2, 26, 1),
    Sketcher.Constraint("Coincident", 26, 2, 27, 1),
    Sketcher.Constraint("Tangent", 27, 2, 0, 2),
    Sketcher.Constraint("Vertical", 5),
    Sketcher.Constraint("Vertical", 11),
    Sketcher.Constraint("Vertical", 19),
    Sketcher.Constraint("Vertical", 25),
    Sketcher.Constraint("Coincident", 15, 3, 1, 3),
    Sketcher.Constraint("Equal", 0, 2),
    Sketcher.Constraint("Equal", 2, 10),
    Sketcher.Constraint("Equal", 4, 12),
    Sketcher.Constraint("Equal", 10, 14),
    Sketcher.Constraint("Equal", 14, 16),
    Sketcher.Constraint("Equal", 12, 18),
    Sketcher.Constraint("Equal", 16, 20),
    Sketcher.Constraint("Equal", 6, 24),
    Sketcher.Constraint("Equal", 18, 26),
    Sketcher.Constraint("Symmetric", 0, 3, 2, 3, -2),
    Sketcher.Constraint("Symmetric", 12, 3, 18, 3, -2),
    Sketcher.Constraint("Symmetric", 6, 3, 24, 3, -2),
    Sketcher.Constraint("Symmetric", 13, 2, 16, 2, -2),
    Sketcher.Constraint("Symmetric", 9, 2, 20, 2, -2),
    Sketcher.Constraint("Symmetric", 8, 2, 21, 2, -2),
    Sketcher.Constraint("Symmetric", 7, 2, 22, 2, -2),
    Sketcher.Constraint("Symmetric", 3, 2, 26, 2, -2),
    Sketcher.Constraint("Parallel", 3, 7),
    Sketcher.Constraint("Perpendicular", 7, 8),
    Sketcher.Constraint("Perpendicular", 8, 9),
    Sketcher.Constraint("Parallel", 9, 13),
    Sketcher.Constraint("Perpendicular", 13, 17),
    Sketcher.Constraint("Horizontal", 24, 3, 5, 2),
    Sketcher.Constraint("Horizontal", 20, 3, 10, 2),
    Sketcher.Constraint("Horizontal", 14, 2, 15, 1),
    Sketcher.Constraint("Horizontal", 12, 1, 17, 2),
    Sketcher.Constraint("Horizontal", 11, 2, 18, 1),
    Sketcher.Constraint("Horizontal", 10, 2, 19, 2),
    Sketcher.Constraint("Horizontal", 6, 1, 23, 2),
    Sketcher.Constraint("Horizontal", 5, 2, 24, 1),
    Sketcher.Constraint("Horizontal", 4, 2, 25, 2),
    Sketcher.Constraint("Equal", 5, 11),
    Sketcher.Constraint("Radius", 0, Q("0.01 in")),
    Sketcher.Constraint("Radius", 1, Q("1.25 in")),
    Sketcher.Constraint("Radius", 15, Q("31.3928 mm")),
    Sketcher.Constraint("DistanceX", 6, 3, 4, 3, Q("0.02 in")),
    Sketcher.Constraint("Radius", 4, Q("0.254006 mm")),
    Sketcher.Constraint("Distance", 8, Q("0.357201 mm")),
    Sketcher.Constraint("Distance", 13, Q("44.300201 mm")),
    Sketcher.Constraint("DistanceY", 5, 2, 5, 1, Q("6.13958 mm")),
    Sketcher.Constraint("DistanceY", 6, 3, 2, 3, Q("37.676401 mm")),
    Sketcher.Constraint("DistanceX", 10, 3, 2, 3, Q("30.969199 mm")),
    Sketcher.Constraint("DistanceX", 4, 3, 12, 3, Q("0.3572 mm")),
    Sketcher.Constraint("DistanceX", 6, 3, 6, 1, Q("0.1796 mm")),
    Sketcher.Constraint("DistanceX", 6, 1, 9, 2, Q("0.357201 mm")),
    Sketcher.Constraint("DistanceX", 3, 2, 12, 1, Q("0.3572 mm")),
    Sketcher.Constraint("DistanceY", 13, 2, 2, 3, Q("0.180199 mm")),
    Sketcher.Constraint("DistanceY", 2, 1, 14, 2, Q("0.359201 mm")),
    Sketcher.Constraint("DistanceY", 22, 2, 20, 2, Q("51.309499 mm")),
    Sketcher.Constraint("DistanceY", -1, 1, 1, 3, Q("413.37958 mm")),
    Sketcher.Constraint("DistanceX", 4, 3, -1, 1, Q("53.627531 mm")),
    Sketcher.Constraint("DistanceY", -1, 1, 3, 2, Q("359.572438 mm")),
])
pad2 = body2.newObject("PartDesign::Pad", "Pad001")
pad2.Profile = sketch2
pad2.Length = Q("120 in")
pad2.Reversed = True
body3 = doc.addObject("PartDesign::Body", "Body002")

sketch3 = body3.newObject("Sketcher::SketchObject", "Sketch002")
sketch3.AttachmentSupport = (doc.getObject("XZ_Plane002"), [""])
sketch3.MapMode = "FlatFace"
sketch3.addGeometry([
    Part.LineSegment(V(-491.830728, 413.73678, 0), V(-568.607913, 413.73678, 0)),
    Part.ArcOfCircle(Part.Circle(V(-568.607911, 413.022375, 0), V(0, 0, 1), 0.714405), math.radians(90.000195), math.radians(134.999828)),
    Part.LineSegment(V(-569.11307, 413.527537, 0), V(-584.514654, 398.125953, 0)),
    Part.ArcOfCircle(Part.Circle(V(-584.767232, 398.378531, 0), V(0, 0, 1), 0.357199), math.radians(-90.000184), math.radians(-45.000067)),
    Part.LineSegment(V(-584.767233, 398.021332, 0), V(-599.269481, 398.021332, 0)),
    Part.ArcOfCircle(Part.Circle(V(-599.269481, 398.704761, 0), V(0, 0, 1), 0.683429), math.radians(84.968344), math.radians(269.999991)),
    Part.LineSegment(V(-599.20954, 399.385556, 0), V(-587.772013, 398.378532, 0)),
    Part.ArcOfCircle(Part.Circle(V(-587.756349, 398.556444, 0), V(0, 0, 1), 0.1786), math.radians(-95.031563), math.radians(84.968146)),
    Part.LineSegment(V(-587.740684, 398.734356, 0), V(-599.178211, 399.74138, 0)),
    Part.ArcOfCircle(Part.Circle(V(-599.269481, 398.704761, 0), V(0, 0, 1), 1.040629), math.radians(84.968323), math.radians(269.999996)),
    Part.LineSegment(V(-599.269481, 397.664132, 0), V(-584.767233, 397.664132, 0)),
    Part.ArcOfCircle(Part.Circle(V(-584.767232, 398.378531, 0), V(0, 0, 1), 0.714399), math.radians(-90.000104), math.radians(-44.999953)),
    Part.LineSegment(V(-584.262075, 397.873375, 0), V(-568.860492, 413.274958, 0)),
    Part.ArcOfCircle(Part.Circle(V(-568.607915, 413.022385, 0), V(0, 0, 1), 0.357195), math.radians(89.999668), math.radians(135.000469)),
    Part.LineSegment(V(-568.607913, 413.37958, 0), V(-491.830728, 413.37958, 0)),
    Part.ArcOfCircle(Part.Circle(V(-491.830728, 413.02238, 0), V(0, 0, 1), 0.3572), math.radians(0.000023), math.radians(89.999977)),
    Part.LineSegment(V(-491.473528, 413.02238, 0), V(-491.473528, 337.832694, 0)),
    Part.ArcOfCircle(Part.Circle(V(-490.759123, 337.832696, 0), V(0, 0, 1), 0.714405), math.radians(-179.999805), math.radians(-135.000172)),
    Part.LineSegment(V(-491.264285, 337.327537, 0), V(-480.994399, 327.057651, 0)),
    Part.ArcOfCircle(Part.Circle(V(-481.476911, 326.57514, 0), V(0, 0, 1), 0.682374), math.radians(-140.038147), math.radians(44.999962)),
    Part.LineSegment(V(-481.999932, 326.136866, 0), V(-489.34947, 334.907565, 0)),
    Part.ArcOfCircle(Part.Circle(V(-489.486362, 334.792855, 0), V(0, 0, 1), 0.1786), math.radians(39.961781), math.radians(219.9932)),
    Part.LineSegment(V(-489.623191, 334.678069, 0), V(-482.273749, 325.907484, 0)),
    Part.ArcOfCircle(Part.Circle(V(-481.476906, 326.57521, 0), V(0, 0, 1), 1.039624), math.radians(-140.038196), math.radians(45.000003)),
    Part.LineSegment(V(-480.741781, 327.310335, 0), V(-491.011706, 337.580259, 0)),
    Part.ArcOfCircle(Part.Circle(V(-490.759128, 337.832837, 0), V(0, 0, 1), 0.357199), math.radians(179.999816), math.radians(224.999933)),
    Part.LineSegment(V(-491.116327, 337.832838, 0), V(-491.116327, 413.02238, 0)),
    Part.ArcOfCircle(Part.Circle(V(-491.830727, 413.02238, 0), V(0, 0, 1), 0.7144), math.radians(0.000023), math.radians(90.000057)),
], False)
sketch3.addConstraint([
    Sketcher.Constraint("Coincident", 0, 2, 1, 1),
    Sketcher.Constraint("Coincident", 1, 2, 2, 1),
    Sketcher.Constraint("Coincident", 2, 2, 3, 2),
    Sketcher.Constraint("Coincident", 3, 1, 4, 1),
    Sketcher.Constraint("Coincident", 4, 2, 5, 2),
    Sketcher.Constraint("Coincident", 5, 1, 6, 1),
    Sketcher.Constraint("Coincident", 6, 2, 7, 1),
    Sketcher.Constraint("Coincident", 7, 2, 8, 1),
    Sketcher.Constraint("Coincident", 8, 2, 9, 1),
    Sketcher.Constraint("Coincident", 9, 2, 10, 1),
    Sketcher.Constraint("Coincident", 10, 2, 11, 1),
    Sketcher.Constraint("Coincident", 11, 2, 12, 1),
    Sketcher.Constraint("Coincident", 12, 2, 13, 2),
    Sketcher.Constraint("Coincident", 13, 1, 14, 1),
    Sketcher.Constraint("Coincident", 14, 2, 15, 2),
    Sketcher.Constraint("Coincident", 15, 1, 16, 1),
    Sketcher.Constraint("Coincident", 16, 2, 17, 1),
    Sketcher.Constraint("Coincident", 17, 2, 18, 1),
    Sketcher.Constraint("Coincident", 18, 2, 19, 2),
    Sketcher.Constraint("Coincident", 19, 1, 20, 1),
    Sketcher.Constraint("Coincident", 20, 2, 21, 1),
    Sketcher.Constraint("Coincident", 21, 2, 22, 1),
    Sketcher.Constraint("Coincident", 22, 2, 23, 1),
    Sketcher.Constraint("Coincident", 23, 2, 24, 1),
    Sketcher.Constraint("Coincident", 24, 2, 25, 2),
    Sketcher.Constraint("Coincident", 25, 1, 26, 1),
    Sketcher.Constraint("Coincident", 26, 2, 27, 1),
    Sketcher.Constraint("Coincident", 27, 2, 0, 1),
    Sketcher.Constraint("Horizontal", 0),
    Sketcher.Constraint("Horizontal", 4),
    Sketcher.Constraint("Horizontal", 10),
    Sketcher.Constraint("Horizontal", 14),
    Sketcher.Constraint("Vertical", 16),
    Sketcher.Constraint("Vertical", 26),
    Sketcher.Constraint("Coincident", 9, 3, 5, 3),
    Sketcher.Constraint("Coincident", 11, 3, 3, 3),
    Sketcher.Constraint("Coincident", 27, 3, 15, 3),
    Sketcher.Constraint("Radius", 3, Q("0.357199 mm")),
    Sketcher.Constraint("Radius", 7, Q("0.1786 mm")),
    Sketcher.Constraint("Radius", 11, Q("0.714399 mm")),
    Sketcher.Constraint("Radius", 15, Q("0.3572 mm")),
    Sketcher.Constraint("Radius", 21, Q("0.1786 mm")),
    Sketcher.Constraint("Radius", 25, Q("0.357199 mm")),
    Sketcher.Constraint("Radius", 27, Q("0.7144 mm")),
    Sketcher.Constraint("Radius", 5, Q("0.683429 mm")),
    Sketcher.Constraint("DistanceY", -1, 1, 17, 3, Q("13.3004999 in")),
    Sketcher.Constraint("Radius", 1, Q("0.714405 mm")),
    Sketcher.Constraint("Radius", 13, Q("0.357195 mm")),
    Sketcher.Constraint("Radius", 17, Q("0.714405 mm")),
    Sketcher.Constraint("Radius", 19, Q("0.682374 mm")),
    Sketcher.Constraint("Radius", 23, Q("1.039624 mm")),
    Sketcher.Constraint("DistanceX", 4, 2, 4, 1, Q("14.502248 mm")),
    Sketcher.Constraint("DistanceX", 10, 1, 10, 2, Q("14.502248 mm")),
    Sketcher.Constraint("DistanceX", 18, 2, -1, 1, Q("480.994399 mm")),
    Sketcher.Constraint("DistanceX", 1, 3, 19, 3, Q("87.131 mm")),
    Sketcher.Constraint("DistanceY", 3, 1, 6, 2, Q("0.3572 mm")),
    Sketcher.Constraint("DistanceX", 14, 2, 25, 3, Q("1.0716 mm")),
    Sketcher.Constraint("DistanceY", 15, 1, 14, 2, Q("0.3572 mm")),
    Sketcher.Constraint("DistanceY", 17, 2, 25, 3, Q("0.5053 mm")),
    Sketcher.Constraint("DistanceY", 17, 2, 25, 1, Q("0.505301 mm")),
    Sketcher.Constraint("DistanceY", 26, 2, 14, 2, Q("0.3572 mm")),
    Sketcher.Constraint("DistanceX", 27, 2, 15, 1, Q("0.3572 mm")),
    Sketcher.Constraint("Distance", 2, Q("21.781129 mm")),
    Sketcher.Constraint("Distance", 20, Q("11.44294 mm")),
    Sketcher.Constraint("Distance", 22, Q("11.442791 mm")),
    Sketcher.Constraint("DistanceX", 0, 2, 0, 1, Q("76.777185 mm")),
    Sketcher.Constraint("DistanceX", 14, 1, 14, 2, Q("76.777185 mm")),
    Sketcher.Constraint("DistanceY", 16, 2, 16, 1, Q("75.189686 mm")),
    Sketcher.Constraint("DistanceY", 26, 1, 26, 2, Q("75.189542 mm")),
    Sketcher.Constraint("DistanceX", 1, 3, -1, 1, Q("568.607911 mm")),
    Sketcher.Constraint("DistanceX", 3, 3, -1, 1, Q("584.767232 mm")),
    Sketcher.Constraint("DistanceY", -1, 1, 3, 3, Q("398.378531 mm")),
    Sketcher.Constraint("DistanceX", 5, 3, -1, 1, Q("599.269481 mm")),
    Sketcher.Constraint("DistanceX", 7, 3, -1, 1, Q("587.756349 mm")),
    Sketcher.Constraint("DistanceX", 15, 3, -1, 1, Q("491.830728 mm")),
    Sketcher.Constraint("DistanceY", -1, 1, 15, 3, Q("413.02238 mm")),
    Sketcher.Constraint("DistanceY", -1, 1, 19, 3, Q("326.57514 mm")),
    Sketcher.Constraint("DistanceX", 21, 3, -1, 1, Q("489.486362 mm")),
    Sketcher.Constraint("DistanceY", -1, 1, 23, 3, Q("326.57521 mm")),
    Sketcher.Constraint("DistanceX", 1, 2, -1, 1, Q("569.11307 mm")),
    Sketcher.Constraint("DistanceX", 4, 2, -1, 1, Q("599.269481 mm")),
    Sketcher.Constraint("DistanceX", 5, 1, -1, 1, Q("599.20954 mm")),
    Sketcher.Constraint("DistanceX", 8, 2, -1, 1, Q("599.178211 mm")),
    Sketcher.Constraint("DistanceX", 9, 2, -1, 1, Q("599.269481 mm")),
    Sketcher.Constraint("DistanceX", 12, 2, -1, 1, Q("568.860492 mm")),
    Sketcher.Constraint("DistanceY", -1, 1, 12, 2, Q("413.274958 mm")),
    Sketcher.Constraint("DistanceX", 20, 2, -1, 1, Q("489.34947 mm")),
    Sketcher.Constraint("DistanceX", 21, 2, -1, 1, Q("489.623191 mm")),
    Sketcher.Constraint("DistanceY", -1, 1, 21, 2, Q("334.678069 mm")),
    Sketcher.Constraint("DistanceX", 22, 2, -1, 1, Q("482.273749 mm")),
    Sketcher.Constraint("DistanceX", 23, 2, -1, 1, Q("480.741781 mm")),
    Sketcher.Constraint("DistanceY", -1, 1, 24, 2, Q("337.580259 mm")),
    Sketcher.Constraint("DistanceY", 7, 3, 1, 3, Q("14.465931 mm")),
    Sketcher.Constraint("DistanceY", 7, 3, 7, 2, Q("0.177912 mm")),
    Sketcher.Constraint("DistanceX", 2, 2, 11, 2, Q("0.252579 mm")),
])
pad3 = body3.newObject("PartDesign::Pad", "Pad002")
pad3.Profile = sketch3
pad3.Length = Q("120 in")
pad3.Reversed = True

doc.recompute()
